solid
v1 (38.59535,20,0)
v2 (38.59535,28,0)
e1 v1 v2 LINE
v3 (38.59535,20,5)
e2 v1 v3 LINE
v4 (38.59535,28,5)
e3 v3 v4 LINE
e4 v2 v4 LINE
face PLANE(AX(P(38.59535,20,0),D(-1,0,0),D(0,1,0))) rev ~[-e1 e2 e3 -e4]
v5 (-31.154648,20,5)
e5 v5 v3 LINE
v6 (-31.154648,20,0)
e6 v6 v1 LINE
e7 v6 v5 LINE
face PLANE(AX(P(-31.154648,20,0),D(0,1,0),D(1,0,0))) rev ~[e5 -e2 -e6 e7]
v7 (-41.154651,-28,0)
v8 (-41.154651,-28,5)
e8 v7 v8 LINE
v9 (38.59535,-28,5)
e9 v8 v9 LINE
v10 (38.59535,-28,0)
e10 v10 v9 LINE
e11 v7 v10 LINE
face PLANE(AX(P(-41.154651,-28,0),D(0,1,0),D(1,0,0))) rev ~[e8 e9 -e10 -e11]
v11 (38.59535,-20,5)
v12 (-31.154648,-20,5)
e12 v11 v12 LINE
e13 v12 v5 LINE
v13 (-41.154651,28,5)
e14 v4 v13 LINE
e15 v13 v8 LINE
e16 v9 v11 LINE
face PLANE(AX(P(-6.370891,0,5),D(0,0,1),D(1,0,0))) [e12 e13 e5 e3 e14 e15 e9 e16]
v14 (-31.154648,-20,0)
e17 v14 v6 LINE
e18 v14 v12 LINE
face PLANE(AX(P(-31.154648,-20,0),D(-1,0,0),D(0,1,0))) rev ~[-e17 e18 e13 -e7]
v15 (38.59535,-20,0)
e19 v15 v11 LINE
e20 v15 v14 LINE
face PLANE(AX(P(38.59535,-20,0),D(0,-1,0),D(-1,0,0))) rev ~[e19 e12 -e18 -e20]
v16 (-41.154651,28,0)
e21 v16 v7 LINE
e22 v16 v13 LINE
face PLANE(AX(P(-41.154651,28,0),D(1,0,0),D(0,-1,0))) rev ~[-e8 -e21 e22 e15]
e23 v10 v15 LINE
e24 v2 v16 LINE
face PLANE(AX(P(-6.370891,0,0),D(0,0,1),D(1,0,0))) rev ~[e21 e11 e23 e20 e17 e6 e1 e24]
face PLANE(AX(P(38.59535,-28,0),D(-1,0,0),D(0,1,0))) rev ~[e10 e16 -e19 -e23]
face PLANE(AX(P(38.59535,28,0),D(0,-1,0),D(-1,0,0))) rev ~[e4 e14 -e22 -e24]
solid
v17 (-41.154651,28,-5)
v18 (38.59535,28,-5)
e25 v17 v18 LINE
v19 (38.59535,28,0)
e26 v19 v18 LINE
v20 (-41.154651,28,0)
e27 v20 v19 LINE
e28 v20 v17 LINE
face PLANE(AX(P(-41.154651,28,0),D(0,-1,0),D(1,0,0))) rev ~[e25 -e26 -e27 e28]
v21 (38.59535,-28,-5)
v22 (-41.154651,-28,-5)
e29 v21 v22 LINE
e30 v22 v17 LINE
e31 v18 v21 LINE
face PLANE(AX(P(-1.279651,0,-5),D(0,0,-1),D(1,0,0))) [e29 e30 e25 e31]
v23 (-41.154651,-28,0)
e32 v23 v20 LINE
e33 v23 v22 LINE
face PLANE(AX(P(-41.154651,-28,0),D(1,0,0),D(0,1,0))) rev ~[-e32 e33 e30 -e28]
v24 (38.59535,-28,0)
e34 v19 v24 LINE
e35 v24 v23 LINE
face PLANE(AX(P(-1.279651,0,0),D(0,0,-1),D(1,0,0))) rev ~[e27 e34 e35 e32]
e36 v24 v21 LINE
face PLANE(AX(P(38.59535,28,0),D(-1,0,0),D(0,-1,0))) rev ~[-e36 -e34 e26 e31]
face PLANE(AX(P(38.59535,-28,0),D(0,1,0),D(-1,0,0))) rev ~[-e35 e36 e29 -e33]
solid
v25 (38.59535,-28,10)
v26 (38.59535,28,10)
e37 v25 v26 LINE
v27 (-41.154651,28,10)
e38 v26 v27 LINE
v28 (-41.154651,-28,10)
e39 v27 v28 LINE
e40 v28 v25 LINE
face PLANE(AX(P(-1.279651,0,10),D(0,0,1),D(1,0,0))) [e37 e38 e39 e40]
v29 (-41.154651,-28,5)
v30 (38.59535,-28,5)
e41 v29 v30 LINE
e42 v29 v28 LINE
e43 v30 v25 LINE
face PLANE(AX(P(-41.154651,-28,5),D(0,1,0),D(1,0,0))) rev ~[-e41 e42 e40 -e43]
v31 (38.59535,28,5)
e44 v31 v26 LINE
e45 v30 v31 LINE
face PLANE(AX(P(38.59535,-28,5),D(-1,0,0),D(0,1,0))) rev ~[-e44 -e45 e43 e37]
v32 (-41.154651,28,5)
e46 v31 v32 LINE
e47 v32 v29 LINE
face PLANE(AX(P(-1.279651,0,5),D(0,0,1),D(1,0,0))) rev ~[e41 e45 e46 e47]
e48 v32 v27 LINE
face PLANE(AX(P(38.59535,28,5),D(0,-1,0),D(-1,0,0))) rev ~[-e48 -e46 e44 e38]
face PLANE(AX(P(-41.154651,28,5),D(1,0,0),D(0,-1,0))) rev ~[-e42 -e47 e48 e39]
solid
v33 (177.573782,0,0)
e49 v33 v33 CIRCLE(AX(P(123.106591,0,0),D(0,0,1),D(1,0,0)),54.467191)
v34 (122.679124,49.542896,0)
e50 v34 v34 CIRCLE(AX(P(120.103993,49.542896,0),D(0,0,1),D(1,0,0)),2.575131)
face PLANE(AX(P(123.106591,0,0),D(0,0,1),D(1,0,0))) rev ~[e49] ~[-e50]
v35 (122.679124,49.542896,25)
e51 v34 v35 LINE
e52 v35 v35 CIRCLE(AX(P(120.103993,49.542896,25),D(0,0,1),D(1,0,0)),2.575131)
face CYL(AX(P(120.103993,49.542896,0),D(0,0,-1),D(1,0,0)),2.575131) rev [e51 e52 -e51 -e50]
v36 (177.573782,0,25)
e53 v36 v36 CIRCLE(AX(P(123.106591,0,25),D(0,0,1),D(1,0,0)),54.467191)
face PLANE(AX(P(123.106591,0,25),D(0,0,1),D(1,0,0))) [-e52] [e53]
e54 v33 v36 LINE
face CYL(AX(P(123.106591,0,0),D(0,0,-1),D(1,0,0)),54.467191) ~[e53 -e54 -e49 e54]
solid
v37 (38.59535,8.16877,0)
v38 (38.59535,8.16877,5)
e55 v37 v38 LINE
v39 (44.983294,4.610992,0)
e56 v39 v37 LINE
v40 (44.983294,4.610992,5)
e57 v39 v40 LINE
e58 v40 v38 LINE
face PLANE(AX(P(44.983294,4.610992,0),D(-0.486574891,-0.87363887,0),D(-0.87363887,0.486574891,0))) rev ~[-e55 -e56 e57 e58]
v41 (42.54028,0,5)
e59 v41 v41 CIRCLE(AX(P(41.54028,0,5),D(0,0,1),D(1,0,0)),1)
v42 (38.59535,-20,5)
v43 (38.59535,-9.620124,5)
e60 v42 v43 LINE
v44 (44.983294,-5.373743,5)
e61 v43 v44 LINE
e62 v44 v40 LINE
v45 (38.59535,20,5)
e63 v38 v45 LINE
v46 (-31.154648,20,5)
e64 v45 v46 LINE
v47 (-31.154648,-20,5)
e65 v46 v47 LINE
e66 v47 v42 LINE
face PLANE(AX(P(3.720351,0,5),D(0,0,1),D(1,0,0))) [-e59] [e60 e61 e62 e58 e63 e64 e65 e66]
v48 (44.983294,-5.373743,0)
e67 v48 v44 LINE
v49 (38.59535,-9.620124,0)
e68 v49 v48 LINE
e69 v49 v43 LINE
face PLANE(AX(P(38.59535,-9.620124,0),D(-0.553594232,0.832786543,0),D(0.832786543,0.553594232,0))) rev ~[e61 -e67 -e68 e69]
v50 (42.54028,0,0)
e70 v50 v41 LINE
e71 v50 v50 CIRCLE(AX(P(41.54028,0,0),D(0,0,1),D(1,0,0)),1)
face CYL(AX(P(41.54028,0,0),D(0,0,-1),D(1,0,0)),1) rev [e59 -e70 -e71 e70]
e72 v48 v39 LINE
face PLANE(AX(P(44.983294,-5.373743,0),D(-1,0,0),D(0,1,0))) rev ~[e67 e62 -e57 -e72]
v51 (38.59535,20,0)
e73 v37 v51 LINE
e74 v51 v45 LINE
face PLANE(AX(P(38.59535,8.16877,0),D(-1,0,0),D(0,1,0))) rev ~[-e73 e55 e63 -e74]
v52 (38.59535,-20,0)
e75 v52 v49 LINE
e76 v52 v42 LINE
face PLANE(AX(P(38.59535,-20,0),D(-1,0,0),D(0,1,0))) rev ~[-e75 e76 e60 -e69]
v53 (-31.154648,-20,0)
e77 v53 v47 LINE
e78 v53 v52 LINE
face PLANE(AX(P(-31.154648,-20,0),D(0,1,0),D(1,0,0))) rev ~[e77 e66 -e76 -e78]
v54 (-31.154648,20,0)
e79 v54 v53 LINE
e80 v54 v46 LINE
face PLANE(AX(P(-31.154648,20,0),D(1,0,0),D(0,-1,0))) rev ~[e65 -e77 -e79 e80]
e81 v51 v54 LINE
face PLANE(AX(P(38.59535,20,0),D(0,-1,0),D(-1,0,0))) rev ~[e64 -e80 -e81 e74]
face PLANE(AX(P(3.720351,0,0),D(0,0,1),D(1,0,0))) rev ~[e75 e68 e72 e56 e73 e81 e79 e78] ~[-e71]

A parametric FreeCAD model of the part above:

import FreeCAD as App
import Part
import Sketcher
from FreeCAD import Vector


def add_polygon(sketch, points):
    """Adds a closed chain of lines whose ends are joined by coincident constraints."""
    first, n = sketch.GeometryCount, len(points)
    for a, b in zip(points, points[1:] + points[:1]):
        sketch.addGeometry(Part.LineSegment(App.Vector(*a, 0), App.Vector(*b, 0)), False)
    for i in range(n):
        sketch.addConstraint(Sketcher.Constraint("Coincident", first + i, 2, first + (i + 1) % n, 1))

doc = App.newDocument("Part")
body = doc.addObject("PartDesign::Body", "Body")

# Sketch on XY plane
sketch1 = body.newObject("Sketcher::SketchObject", "Sketch")
sketch1.AttachmentSupport = (doc.getObject("XY_Plane"), [""])
sketch1.MapMode = "FlatFace"
add_polygon(sketch1, [(38.59535, 20), (-31.154648, 20), (-31.154648, -20), (38.59535, -20), (38.59535, -9.620124), (44.983294, -5.373743), (44.983294, 4.610992), (38.59535, 8.16877)])  # lines 0-7
sketch1.addGeometry(Part.Circle(Vector(41.54028, 0, 0), Vector(0, 0, 1), 1), False)  # 8
sketch1.addConstraint([
    Sketcher.Constraint("Horizontal", 0),
    Sketcher.Constraint("Vertical", 1),
    Sketcher.Constraint("Horizontal", 2),
    Sketcher.Constraint("Vertical", 3),
    Sketcher.Constraint("Vertical", 5),
    Sketcher.Constraint("Vertical", 7),
    Sketcher.Constraint("Symmetric", 2, 2, 7, 2, -1),
    Sketcher.Constraint("PointOnObject", 8, 3, -1),
    Sketcher.Constraint("Diameter", 8, 2.0),
    Sketcher.Constraint("DistanceY", 1, 2, 1, 1, 40.0),
    Sketcher.Constraint("DistanceX", 0, 2, 0, 1, 69.749998),
    Sketcher.Constraint("DistanceY", 7, 1, 7, 2, 11.83123),
    Sketcher.Constraint("Distance", 6, 7.311882),
    Sketcher.Constraint("DistanceY", 3, 1, 3, 2, 10.379876),
    Sketcher.Constraint("DistanceY", 5, 1, 5, 2, 9.984735),
    Sketcher.Constraint("DistanceX", -1, 1, 8, 3, 41.54028),
    Sketcher.Constraint("DistanceX", 0, 2, -1, 1, 31.154648),
    Sketcher.Constraint("DistanceY", 3, 2, 4, 2, 4.246381),
])
pad1 = body.newObject("PartDesign::Pad", "Pad")
pad1.Profile = sketch1
pad1.Length = 5
body2 = doc.addObject("PartDesign::Body", "Body001")

# Sketch on XY plane
sketch2 = body2.newObject("Sketcher::SketchObject", "Sketch001")
sketch2.AttachmentSupport = (doc.getObject("XY_Plane001"), [""])
sketch2.MapMode = "FlatFace"
add_polygon(sketch2, [(-31.154648, -20), (-31.154648, 20), (38.59535, 20), (38.59535, 28), (-41.154651, 28), (-41.154651, -28), (38.59535, -28), (38.59535, -20)])  # lines 0-7
sketch2.addConstraint([
    Sketcher.Constraint("Vertical", 0),
    Sketcher.Constraint("Horizontal", 1),
    Sketcher.Constraint("Vertical", 2),
    Sketcher.Constraint("Horizontal", 3),
    Sketcher.Constraint("Vertical", 4),
    Sketcher.Constraint("Horizontal", 5),
    Sketcher.Constraint("Vertical", 6),
    Sketcher.Constraint("Horizontal", 7),
    Sketcher.Constraint("Symmetric", 2, 2, 5, 2, -1),
    Sketcher.Constraint("Equal", 2, 6),
    Sketcher.Constraint("DistanceY", 0, 1, 0, 2, 40.0),
    Sketcher.Constraint("DistanceY", 2, 1, 2, 2, 8.0),
    Sketcher.Constraint("DistanceX", 1, 1, 1, 2, 69.749998),
    Sketcher.Constraint("DistanceX", 3, 2, 3, 1, 79.750001),
    Sketcher.Constraint("DistanceX", 0, 2, -1, 1, 31.154648),
])
pad2 = body2.newObject("PartDesign::Pad", "Pad001")
pad2.Profile = sketch2
pad2.Length = 5
body3 = doc.addObject("PartDesign::Body", "Body002")

# Sketch on XY plane
sketch3 = body3.newObject("Sketcher::SketchObject", "Sketch002")
sketch3.AttachmentSupport = (doc.getObject("XY_Plane002"), [""])
sketch3.MapMode = "FlatFace"
add_polygon(sketch3, [(38.59535, -28), (-41.154651, -28), (-41.154651, 28), (38.59535, 28)])  # lines 0-3
sketch3.addConstraint([
    Sketcher.Constraint("Horizontal", 0),
    Sketcher.Constraint("Vertical", 1),
    Sketcher.Constraint("Horizontal", 2),
    Sketcher.Constraint("Vertical", 3),
    Sketcher.Constraint("DistanceY", 1, 1, 1, 2, 56.0),
    Sketcher.Constraint("DistanceY", 0, 2, -1, 1, 28.0),
    Sketcher.Constraint("DistanceX", 0, 2, 0, 1, 79.750001),
    Sketcher.Constraint("DistanceX", 0, 2, -1, 1, 41.154651),
])
pad3 = body3.newObject("PartDesign::Pad", "Pad002")
pad3.Profile = sketch3
pad3.Length = 5
pad3.Reversed = True
body4 = doc.addObject("PartDesign::Body", "Body003")

# Sketch on XY plane
sketch4 = body4.newObject("Sketcher::SketchObject", "Sketch003")
sketch4.AttachmentSupport = (doc.getObject("XY_Plane003"), [""])
sketch4.MapMode = "FlatFace"
sketch4.AttachmentOffset = App.Placement(Vector(0, 0, 5), App.Rotation())
add_polygon(sketch4, [(-41.154651, 28), (-41.154651, -28), (38.59535, -28), (38.59535, 28)])  # lines 0-3
sketch4.addConstraint([
    Sketcher.Constraint("Vertical", 0),
    Sketcher.Constraint("Horizontal", 1),
    Sketcher.Constraint("Vertical", 2),
    Sketcher.Constraint("Horizontal", 3),
    Sketcher.Constraint("DistanceY", 0, 2, 0, 1, 56.0),
    Sketcher.Constraint("DistanceY", 0, 2, -1, 1, 28.0),
    Sketcher.Constraint("DistanceX", 1, 1, 1, 2, 79.750001),
    Sketcher.Constraint("DistanceX", 0, 2, -1, 1, 41.154651),
])
pad4 = body4.newObject("PartDesign::Pad", "Pad003")
pad4.Profile = sketch4
pad4.Length = 5
body5 = doc.addObject("PartDesign::Body", "Body004")

# Sketch on XY plane
sketch5 = body5.newObject("Sketcher::SketchObject", "Sketch004")
sketch5.AttachmentSupport = (doc.getObject("XY_Plane004"), [""])
sketch5.MapMode = "FlatFace"
sketch5.addGeometry([
    Part.Circle(Vector(123.106591, 0, 0), Vector(0, 0, 1), 54.467191),
    Part.Circle(Vector(120.103993, 49.542896, 0), Vector(0, 0, 1), 2.575131),
], False)
sketch5.addConstraint([
    Sketcher.Constraint("PointOnObject", 0, 3, -1),
    Sketcher.Constraint("Diameter", 0, 108.934382),
    Sketcher.Constraint("Diameter", 1, 5.150262),
    Sketcher.Constraint("DistanceX", -1, 1, 0, 3, 123.106591),
    Sketcher.Constraint("DistanceX", -1, 1, 1, 3, 120.103993),
    Sketcher.Constraint("DistanceY", -1, 1, 1, 3, 49.542896),
])
pad5 = body5.newObject("PartDesign::Pad", "Pad004")
pad5.Profile = sketch5
pad5.Length = 25

doc.recompute()
